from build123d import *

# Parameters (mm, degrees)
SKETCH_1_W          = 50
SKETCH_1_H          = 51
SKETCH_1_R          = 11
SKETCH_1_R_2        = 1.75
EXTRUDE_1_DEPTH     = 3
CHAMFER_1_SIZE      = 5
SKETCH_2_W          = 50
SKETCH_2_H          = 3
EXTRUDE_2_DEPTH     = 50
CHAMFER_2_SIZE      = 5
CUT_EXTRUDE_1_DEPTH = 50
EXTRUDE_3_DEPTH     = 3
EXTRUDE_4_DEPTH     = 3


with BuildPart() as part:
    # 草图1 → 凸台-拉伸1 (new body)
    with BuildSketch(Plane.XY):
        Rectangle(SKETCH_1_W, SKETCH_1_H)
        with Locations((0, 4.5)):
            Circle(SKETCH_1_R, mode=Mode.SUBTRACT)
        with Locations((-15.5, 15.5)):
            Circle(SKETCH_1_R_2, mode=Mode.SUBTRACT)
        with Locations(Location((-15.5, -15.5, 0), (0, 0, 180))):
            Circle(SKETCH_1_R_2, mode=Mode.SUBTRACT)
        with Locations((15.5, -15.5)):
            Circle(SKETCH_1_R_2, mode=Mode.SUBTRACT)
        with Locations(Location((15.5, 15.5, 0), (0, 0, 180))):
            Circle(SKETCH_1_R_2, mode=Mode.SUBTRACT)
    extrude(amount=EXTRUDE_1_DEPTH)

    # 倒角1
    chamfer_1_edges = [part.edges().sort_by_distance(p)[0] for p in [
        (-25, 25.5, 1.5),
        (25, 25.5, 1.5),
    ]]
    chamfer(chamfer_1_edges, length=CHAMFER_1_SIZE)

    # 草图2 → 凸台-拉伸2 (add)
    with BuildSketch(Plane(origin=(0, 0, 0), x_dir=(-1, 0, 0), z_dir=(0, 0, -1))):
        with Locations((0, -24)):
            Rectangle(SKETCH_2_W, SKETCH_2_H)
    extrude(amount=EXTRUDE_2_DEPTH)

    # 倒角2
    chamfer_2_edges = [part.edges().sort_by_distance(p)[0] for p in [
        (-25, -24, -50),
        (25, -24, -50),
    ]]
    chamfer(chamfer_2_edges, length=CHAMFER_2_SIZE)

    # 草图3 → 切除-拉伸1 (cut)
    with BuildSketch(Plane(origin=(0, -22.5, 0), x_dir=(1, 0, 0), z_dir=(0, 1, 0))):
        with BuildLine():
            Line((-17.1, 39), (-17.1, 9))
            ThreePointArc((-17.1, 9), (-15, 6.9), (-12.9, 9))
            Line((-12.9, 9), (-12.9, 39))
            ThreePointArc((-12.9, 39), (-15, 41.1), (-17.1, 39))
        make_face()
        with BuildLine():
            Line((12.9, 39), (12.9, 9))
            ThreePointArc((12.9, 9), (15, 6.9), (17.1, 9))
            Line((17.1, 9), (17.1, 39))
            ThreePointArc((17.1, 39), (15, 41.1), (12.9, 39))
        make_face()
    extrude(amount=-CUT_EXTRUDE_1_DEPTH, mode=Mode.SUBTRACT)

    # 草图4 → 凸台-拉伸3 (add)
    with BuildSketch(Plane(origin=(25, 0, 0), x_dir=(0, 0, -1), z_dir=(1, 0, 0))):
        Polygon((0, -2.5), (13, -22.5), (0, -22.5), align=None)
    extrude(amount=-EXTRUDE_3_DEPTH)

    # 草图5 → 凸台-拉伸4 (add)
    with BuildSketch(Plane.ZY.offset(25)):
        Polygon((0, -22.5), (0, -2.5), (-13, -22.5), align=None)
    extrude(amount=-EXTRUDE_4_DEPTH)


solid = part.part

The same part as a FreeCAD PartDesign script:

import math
import FreeCAD as App
import Part
import Sketcher


def edges_at(feature, points):
    """Names of the edges that pass closest to the given points."""
    edges = feature.Shape.Edges
    near = lambda p: min(range(len(edges)), key=lambda i: edges[i].distToShape(Part.Vertex(*p))[0])
    return sorted({f"Edge{near(p) + 1}" for p in points})


def add_polygon(sketch, points):
    """Adds a closed chain of lines whose ends are joined by coincident constraints."""
    first, n = sketch.GeometryCount, len(points)
    for a, b in zip(points, points[1:] + points[:1]):
        sketch.addGeometry(Part.LineSegment(App.Vector(*a, 0), App.Vector(*b, 0)), False)
    for i in range(n):
        sketch.addConstraint(Sketcher.Constraint("Coincident", first + i, 2, first + (i + 1) % n, 1))

doc = App.newDocument("Part")
params = doc.addObject("Spreadsheet::Sheet", "Params")
for row, (alias, value) in enumerate([
    ("sketch1_diameter", "22 mm"),
    ("sketch1_diameter2", "3.5 mm"),
    ("sketch1_width", "50 mm"),
    ("sketch1_height", "51 mm"),
    ("pad1_length", "3 mm"),
    ("chamfer_size", "5 mm"),
    ("sketch2_width", "50 mm"),
    ("sketch2_height", "3 mm"),
    ("pad2_length", "50 mm"),
    ("chamfer2_size", "5 mm"),
    ("sketch3_radius", "2.1 mm"),
    ("sketch3_height", "30 mm"),
    ("pocket1_length", "50 mm"),
    ("sketch4_width", "20 mm"),
    ("sketch4_height", "13 mm"),
    ("pad3_length", "3 mm"),
    ("sketch5_width", "20 mm"),
    ("sketch5_height", "13 mm"),
    ("pad4_length", "3 mm"),
], start=1):
    params.set(f"A{row}", alias)
    params.set(f"B{row}", "=" + value)
    params.setAlias(f"B{row}", alias)

body = doc.addObject("PartDesign::Body", "Body")

# Sketch on XY plane
sketch1 = body.newObject("Sketcher::SketchObject", "Sketch")
sketch1.AttachmentSupport = (doc.getObject("XY_Plane"), [""])
sketch1.MapMode = "FlatFace"
add_polygon(sketch1, [(-25, 25.5), (-25, -25.5), (25, -25.5), (25, 25.5)])  # lines 0-3
sketch1.addGeometry(Part.Circle(App.Vector(-15.5, -15.5, 0), App.Vector(0, 0, 1), 1.8), False)  # 4
sketch1.addGeometry(Part.Circle(App.Vector(15.5, -15.5, 0), App.Vector(0, 0, 1), 1.8), False)  # 5
sketch1.addGeometry(Part.Circle(App.Vector(-15.5, 15.5, 0), App.Vector(0, 0, 1), 1.8), False)  # 6
sketch1.addGeometry(Part.Circle(App.Vector(0, 4.5, 0), App.Vector(0, 0, 1), 11), False)  # 7
sketch1.addGeometry(Part.Circle(App.Vector(15.5, 15.5, 0), App.Vector(0, 0, 1), 1.8), False)  # 8
sketch1.addConstraint(Sketcher.Constraint("Vertical", 0))
sketch1.addConstraint(Sketcher.Constraint("Horizontal", 1))
sketch1.addConstraint(Sketcher.Constraint("Vertical", 2))
sketch1.addConstraint(Sketcher.Constraint("Horizontal", 3))
sketch1.addConstraint(Sketcher.Constraint("Equal", 4, 5))
sketch1.addConstraint(Sketcher.Constraint("Equal", 5, 6))
sketch1.addConstraint(Sketcher.Constraint("Equal", 6, 8))
sketch1.addConstraint(Sketcher.Constraint("Symmetric", 5, 3, 6, 3, -1, 1))
sketch1.addConstraint(Sketcher.Constraint("Symmetric", 4, 3, 8, 3, -1, 1))
sketch1.addConstraint(Sketcher.Constraint("Symmetric", 0, 2, 2, 2, -1, 1))
sketch1.addConstraint(Sketcher.Constraint("Symmetric", 4, 3, 5, 3, -2))
sketch1.addConstraint(Sketcher.Constraint("PointOnObject", 7, 3, -2))
sketch1.addConstraint(Sketcher.Constraint("Diameter", 7, 22.0))
sketch1.addConstraint(Sketcher.Constraint("Diameter", 4, 3.5))
sketch1.addConstraint(Sketcher.Constraint("DistanceX", 1, 1, 1, 2, 50.0))
sketch1.addConstraint(Sketcher.Constraint("DistanceY", 0, 2, 0, 1, 51.0))
sketch1.addConstraint(Sketcher.Constraint("DistanceX", 4, 3, 5, 3, 31.0))
sketch1.addConstraint(Sketcher.Constraint("DistanceY", 4, 3, 6, 3, 31.0))
sketch1.addConstraint(Sketcher.Constraint("DistanceY", 7, 3, 6, 3, 11.0))
sketch1.setExpression("Constraints[16]", "Params.sketch1_diameter")
sketch1.setExpression("Constraints[17]", "Params.sketch1_diameter2")
sketch1.setExpression("Constraints[18]", "Params.sketch1_width")
sketch1.setExpression("Constraints[19]", "Params.sketch1_height")
pad1 = body.newObject("PartDesign::Pad", "Pad")
pad1.Profile = sketch1
pad1.setExpression("Length", "Params.pad1_length")
doc.recompute()

chamfer = body.newObject("PartDesign::Chamfer", "Chamfer")
chamfer.Base = (pad1, edges_at(pad1, [(-25, 25.5, 1.5), (25, 25.5, 1.5)]))
chamfer.setExpression("Size", "Params.chamfer_size")

# Sketch on XY plane
sketch2 = body.newObject("Sketcher::SketchObject", "Sketch001")
sketch2.AttachmentSupport = (doc.getObject("XY_Plane"), [""])
sketch2.MapMode = "FlatFace"
add_polygon(sketch2, [(25, -22.5), (25, -25.5), (-25, -25.5), (-25, -22.5)])  # lines 0-3
sketch2.addConstraint(Sketcher.Constraint("Vertical", 0))
sketch2.addConstraint(Sketcher.Constraint("Horizontal", 1))
sketch2.addConstraint(Sketcher.Constraint("Vertical", 2))
sketch2.addConstraint(Sketcher.Constraint("Horizontal", 3))
sketch2.addConstraint(Sketcher.Constraint("DistanceX", 1, 2, 1, 1, 50.0))
sketch2.addConstraint(Sketcher.Constraint("DistanceY", 0, 2, 0, 1, 3.0))
sketch2.addConstraint(Sketcher.Constraint("DistanceX", -1, 1, 0, 2, 25.0))
sketch2.addConstraint(Sketcher.Constraint("DistanceY", 0, 2, -1, 1, 25.5))
sketch2.setExpression("Constraints[8]", "Params.sketch2_width")
sketch2.setExpression("Constraints[9]", "Params.sketch2_height")
pad2 = body.newObject("PartDesign::Pad", "Pad001")
pad2.Profile = sketch2
pad2.setExpression("Length", "Params.pad2_length")
pad2.Reversed = True
doc.recompute()

chamfer2 = body.newObject("PartDesign::Chamfer", "Chamfer001")
chamfer2.Base = (pad2, edges_at(pad2, [(-25, -24, -50), (25, -24, -50)]))
chamfer2.setExpression("Size", "Params.chamfer2_size")

# Sketch on XZ plane
sketch3 = body.newObject("Sketcher::SketchObject", "Sketch002")
sketch3.AttachmentSupport = (doc.getObject("XZ_Plane"), [""])
sketch3.MapMode = "FlatFace"
sketch3.AttachmentOffset = App.Placement(App.Vector(0, 0, 22.5), App.Rotation())
sketch3.addGeometry(Part.LineSegment(App.Vector(-17.1, -39, 0), App.Vector(-17.1, -9, 0)), False)
sketch3.addGeometry(Part.ArcOfCircle(Part.Circle(App.Vector(-15, -9, 0), App.Vector(0, 0, 1), 2.1), math.radians(0), math.radians(180)), False)
sketch3.addGeometry(Part.LineSegment(App.Vector(-12.9, -9, 0), App.Vector(-12.9, -39, 0)), False)
sketch3.addGeometry(Part.ArcOfCircle(Part.Circle(App.Vector(-15, -39, 0), App.Vector(0, 0, 1), 2.1), math.radians(180), math.radians(360)), False)
sketch3.addGeometry(Part.LineSegment(App.Vector(12.9, -39, 0), App.Vector(12.9, -9, 0)), False)
sketch3.addGeometry(Part.ArcOfCircle(Part.Circle(App.Vector(15, -9, 0), App.Vector(0, 0, 1), 2.1), math.radians(0), math.radians(180)), False)
sketch3.addGeometry(Part.LineSegment(App.Vector(17.1, -9, 0), App.Vector(17.1, -39, 0)), False)
sketch3.addGeometry(Part.ArcOfCircle(Part.Circle(App.Vector(15, -39, 0), App.Vector(0, 0, 1), 2.1), math.radians(180), math.radians(360)), False)
sketch3.addConstraint(Sketcher.Constraint("Tangent", 0, 2, 1, 2))
sketch3.addConstraint(Sketcher.Constraint("Tangent", 1, 1, 2, 1))
sketch3.addConstraint(Sketcher.Constraint("Tangent", 2, 2, 3, 2))
sketch3.addConstraint(Sketcher.Constraint("Tangent", 3, 1, 0, 1))
sketch3.addConstraint(Sketcher.Constraint("Tangent", 4, 2, 5, 2))
sketch3.addConstraint(Sketcher.Constraint("Tangent", 5, 1, 6, 1))
sketch3.addConstraint(Sketcher.Constraint("Tangent", 6, 2, 7, 2))
sketch3.addConstraint(Sketcher.Constraint("Tangent", 7, 1, 4, 1))
sketch3.addConstraint(Sketcher.Constraint("Vertical", 0))
sketch3.addConstraint(Sketcher.Constraint("Vertical", 2))
sketch3.addConstraint(Sketcher.Constraint("Vertical", 4))
sketch3.addConstraint(Sketcher.Constraint("Vertical", 6))
sketch3.addConstraint(Sketcher.Constraint("Equal", 3, 5))
sketch3.addConstraint(Sketcher.Constraint("Symmetric", 1, 3, 5, 3, -2))
sketch3.addConstraint(Sketcher.Constraint("Horizontal", 3, 3, 7, 3))
sketch3.addConstraint(Sketcher.Constraint("Radius", 1, 2.1))
sketch3.addConstraint(Sketcher.Constraint("DistanceY", 0, 1, 0, 2, 30.0))
sketch3.addConstraint(Sketcher.Constraint("DistanceX", 1, 3, -1, 1, 15.0))
sketch3.addConstraint(Sketcher.Constraint("DistanceY", 1, 3, -1, 1, 9.0))
sketch3.setExpression("Constraints[15]", "Params.sketch3_radius")
sketch3.setExpression("Constraints[16]", "Params.sketch3_height")
pocket1 = body.newObject("PartDesign::Pocket", "Pocket")
pocket1.Profile = sketch3
pocket1.setExpression("Length", "Params.pocket1_length")
pocket1.Reversed = True

# Sketch on YZ plane
sketch4 = body.newObject("Sketcher::SketchObject", "Sketch003")
sketch4.AttachmentSupport = (doc.getObject("YZ_Plane"), [""])
sketch4.MapMode = "FlatFace"
sketch4.AttachmentOffset = App.Placement(App.Vector(0, 0, 25), App.Rotation())
add_polygon(sketch4, [(-22, -13), (-2, 0), (-22, 0)])  # lines 0-2
sketch4.addConstraint(Sketcher.Constraint("Horizontal", 1))
sketch4.addConstraint(Sketcher.Constraint("Vertical", 2))
sketch4.addConstraint(Sketcher.Constraint("PointOnObject", 0, 2, -1))
sketch4.addConstraint(Sketcher.Constraint("DistanceX", 1, 2, 1, 1, 20.0))
sketch4.addConstraint(Sketcher.Constraint("DistanceY", 2, 2, 2, 1, 13.0))
sketch4.addConstraint(Sketcher.Constraint("DistanceX", 0, 2, -1, 1, 2.5))
sketch4.setExpression("Constraints[6]", "Params.sketch4_width")
sketch4.setExpression("Constraints[7]", "Params.sketch4_height")
pad3 = body.newObject("PartDesign::Pad", "Pad002")
pad3.Profile = sketch4
pad3.setExpression("Length", "Params.pad3_length")
pad3.Reversed = True

# Sketch on YZ plane
sketch5 = body.newObject("Sketcher::SketchObject", "Sketch004")
sketch5.AttachmentSupport = (doc.getObject("YZ_Plane"), [""])
sketch5.MapMode = "FlatFace"
sketch5.AttachmentOffset = App.Placement(App.Vector(0, 0, -25), App.Rotation())
add_polygon(sketch5, [(-22, 0), (-2, 0), (-22, -13)])  # lines 0-2
sketch5.addConstraint(Sketcher.Constraint("Horizontal", 0))
sketch5.addConstraint(Sketcher.Constraint("Vertical", 2))
sketch5.addConstraint(Sketcher.Constraint("PointOnObject", 0, 2, -1))
sketch5.addConstraint(Sketcher.Constraint("DistanceX", 0, 1, 0, 2, 20.0))
sketch5.addConstraint(Sketcher.Constraint("DistanceY", 2, 1, 2, 2, 13.0))
sketch5.addConstraint(Sketcher.Constraint("DistanceX", 0, 2, -1, 1, 2.5))
sketch5.setExpression("Constraints[6]", "Params.sketch5_width")
sketch5.setExpression("Constraints[7]", "Params.sketch5_height")
pad4 = body.newObject("PartDesign::Pad", "Pad003")
pad4.Profile = sketch5
pad4.setExpression("Length", "Params.pad4_length")

doc.recompute()
